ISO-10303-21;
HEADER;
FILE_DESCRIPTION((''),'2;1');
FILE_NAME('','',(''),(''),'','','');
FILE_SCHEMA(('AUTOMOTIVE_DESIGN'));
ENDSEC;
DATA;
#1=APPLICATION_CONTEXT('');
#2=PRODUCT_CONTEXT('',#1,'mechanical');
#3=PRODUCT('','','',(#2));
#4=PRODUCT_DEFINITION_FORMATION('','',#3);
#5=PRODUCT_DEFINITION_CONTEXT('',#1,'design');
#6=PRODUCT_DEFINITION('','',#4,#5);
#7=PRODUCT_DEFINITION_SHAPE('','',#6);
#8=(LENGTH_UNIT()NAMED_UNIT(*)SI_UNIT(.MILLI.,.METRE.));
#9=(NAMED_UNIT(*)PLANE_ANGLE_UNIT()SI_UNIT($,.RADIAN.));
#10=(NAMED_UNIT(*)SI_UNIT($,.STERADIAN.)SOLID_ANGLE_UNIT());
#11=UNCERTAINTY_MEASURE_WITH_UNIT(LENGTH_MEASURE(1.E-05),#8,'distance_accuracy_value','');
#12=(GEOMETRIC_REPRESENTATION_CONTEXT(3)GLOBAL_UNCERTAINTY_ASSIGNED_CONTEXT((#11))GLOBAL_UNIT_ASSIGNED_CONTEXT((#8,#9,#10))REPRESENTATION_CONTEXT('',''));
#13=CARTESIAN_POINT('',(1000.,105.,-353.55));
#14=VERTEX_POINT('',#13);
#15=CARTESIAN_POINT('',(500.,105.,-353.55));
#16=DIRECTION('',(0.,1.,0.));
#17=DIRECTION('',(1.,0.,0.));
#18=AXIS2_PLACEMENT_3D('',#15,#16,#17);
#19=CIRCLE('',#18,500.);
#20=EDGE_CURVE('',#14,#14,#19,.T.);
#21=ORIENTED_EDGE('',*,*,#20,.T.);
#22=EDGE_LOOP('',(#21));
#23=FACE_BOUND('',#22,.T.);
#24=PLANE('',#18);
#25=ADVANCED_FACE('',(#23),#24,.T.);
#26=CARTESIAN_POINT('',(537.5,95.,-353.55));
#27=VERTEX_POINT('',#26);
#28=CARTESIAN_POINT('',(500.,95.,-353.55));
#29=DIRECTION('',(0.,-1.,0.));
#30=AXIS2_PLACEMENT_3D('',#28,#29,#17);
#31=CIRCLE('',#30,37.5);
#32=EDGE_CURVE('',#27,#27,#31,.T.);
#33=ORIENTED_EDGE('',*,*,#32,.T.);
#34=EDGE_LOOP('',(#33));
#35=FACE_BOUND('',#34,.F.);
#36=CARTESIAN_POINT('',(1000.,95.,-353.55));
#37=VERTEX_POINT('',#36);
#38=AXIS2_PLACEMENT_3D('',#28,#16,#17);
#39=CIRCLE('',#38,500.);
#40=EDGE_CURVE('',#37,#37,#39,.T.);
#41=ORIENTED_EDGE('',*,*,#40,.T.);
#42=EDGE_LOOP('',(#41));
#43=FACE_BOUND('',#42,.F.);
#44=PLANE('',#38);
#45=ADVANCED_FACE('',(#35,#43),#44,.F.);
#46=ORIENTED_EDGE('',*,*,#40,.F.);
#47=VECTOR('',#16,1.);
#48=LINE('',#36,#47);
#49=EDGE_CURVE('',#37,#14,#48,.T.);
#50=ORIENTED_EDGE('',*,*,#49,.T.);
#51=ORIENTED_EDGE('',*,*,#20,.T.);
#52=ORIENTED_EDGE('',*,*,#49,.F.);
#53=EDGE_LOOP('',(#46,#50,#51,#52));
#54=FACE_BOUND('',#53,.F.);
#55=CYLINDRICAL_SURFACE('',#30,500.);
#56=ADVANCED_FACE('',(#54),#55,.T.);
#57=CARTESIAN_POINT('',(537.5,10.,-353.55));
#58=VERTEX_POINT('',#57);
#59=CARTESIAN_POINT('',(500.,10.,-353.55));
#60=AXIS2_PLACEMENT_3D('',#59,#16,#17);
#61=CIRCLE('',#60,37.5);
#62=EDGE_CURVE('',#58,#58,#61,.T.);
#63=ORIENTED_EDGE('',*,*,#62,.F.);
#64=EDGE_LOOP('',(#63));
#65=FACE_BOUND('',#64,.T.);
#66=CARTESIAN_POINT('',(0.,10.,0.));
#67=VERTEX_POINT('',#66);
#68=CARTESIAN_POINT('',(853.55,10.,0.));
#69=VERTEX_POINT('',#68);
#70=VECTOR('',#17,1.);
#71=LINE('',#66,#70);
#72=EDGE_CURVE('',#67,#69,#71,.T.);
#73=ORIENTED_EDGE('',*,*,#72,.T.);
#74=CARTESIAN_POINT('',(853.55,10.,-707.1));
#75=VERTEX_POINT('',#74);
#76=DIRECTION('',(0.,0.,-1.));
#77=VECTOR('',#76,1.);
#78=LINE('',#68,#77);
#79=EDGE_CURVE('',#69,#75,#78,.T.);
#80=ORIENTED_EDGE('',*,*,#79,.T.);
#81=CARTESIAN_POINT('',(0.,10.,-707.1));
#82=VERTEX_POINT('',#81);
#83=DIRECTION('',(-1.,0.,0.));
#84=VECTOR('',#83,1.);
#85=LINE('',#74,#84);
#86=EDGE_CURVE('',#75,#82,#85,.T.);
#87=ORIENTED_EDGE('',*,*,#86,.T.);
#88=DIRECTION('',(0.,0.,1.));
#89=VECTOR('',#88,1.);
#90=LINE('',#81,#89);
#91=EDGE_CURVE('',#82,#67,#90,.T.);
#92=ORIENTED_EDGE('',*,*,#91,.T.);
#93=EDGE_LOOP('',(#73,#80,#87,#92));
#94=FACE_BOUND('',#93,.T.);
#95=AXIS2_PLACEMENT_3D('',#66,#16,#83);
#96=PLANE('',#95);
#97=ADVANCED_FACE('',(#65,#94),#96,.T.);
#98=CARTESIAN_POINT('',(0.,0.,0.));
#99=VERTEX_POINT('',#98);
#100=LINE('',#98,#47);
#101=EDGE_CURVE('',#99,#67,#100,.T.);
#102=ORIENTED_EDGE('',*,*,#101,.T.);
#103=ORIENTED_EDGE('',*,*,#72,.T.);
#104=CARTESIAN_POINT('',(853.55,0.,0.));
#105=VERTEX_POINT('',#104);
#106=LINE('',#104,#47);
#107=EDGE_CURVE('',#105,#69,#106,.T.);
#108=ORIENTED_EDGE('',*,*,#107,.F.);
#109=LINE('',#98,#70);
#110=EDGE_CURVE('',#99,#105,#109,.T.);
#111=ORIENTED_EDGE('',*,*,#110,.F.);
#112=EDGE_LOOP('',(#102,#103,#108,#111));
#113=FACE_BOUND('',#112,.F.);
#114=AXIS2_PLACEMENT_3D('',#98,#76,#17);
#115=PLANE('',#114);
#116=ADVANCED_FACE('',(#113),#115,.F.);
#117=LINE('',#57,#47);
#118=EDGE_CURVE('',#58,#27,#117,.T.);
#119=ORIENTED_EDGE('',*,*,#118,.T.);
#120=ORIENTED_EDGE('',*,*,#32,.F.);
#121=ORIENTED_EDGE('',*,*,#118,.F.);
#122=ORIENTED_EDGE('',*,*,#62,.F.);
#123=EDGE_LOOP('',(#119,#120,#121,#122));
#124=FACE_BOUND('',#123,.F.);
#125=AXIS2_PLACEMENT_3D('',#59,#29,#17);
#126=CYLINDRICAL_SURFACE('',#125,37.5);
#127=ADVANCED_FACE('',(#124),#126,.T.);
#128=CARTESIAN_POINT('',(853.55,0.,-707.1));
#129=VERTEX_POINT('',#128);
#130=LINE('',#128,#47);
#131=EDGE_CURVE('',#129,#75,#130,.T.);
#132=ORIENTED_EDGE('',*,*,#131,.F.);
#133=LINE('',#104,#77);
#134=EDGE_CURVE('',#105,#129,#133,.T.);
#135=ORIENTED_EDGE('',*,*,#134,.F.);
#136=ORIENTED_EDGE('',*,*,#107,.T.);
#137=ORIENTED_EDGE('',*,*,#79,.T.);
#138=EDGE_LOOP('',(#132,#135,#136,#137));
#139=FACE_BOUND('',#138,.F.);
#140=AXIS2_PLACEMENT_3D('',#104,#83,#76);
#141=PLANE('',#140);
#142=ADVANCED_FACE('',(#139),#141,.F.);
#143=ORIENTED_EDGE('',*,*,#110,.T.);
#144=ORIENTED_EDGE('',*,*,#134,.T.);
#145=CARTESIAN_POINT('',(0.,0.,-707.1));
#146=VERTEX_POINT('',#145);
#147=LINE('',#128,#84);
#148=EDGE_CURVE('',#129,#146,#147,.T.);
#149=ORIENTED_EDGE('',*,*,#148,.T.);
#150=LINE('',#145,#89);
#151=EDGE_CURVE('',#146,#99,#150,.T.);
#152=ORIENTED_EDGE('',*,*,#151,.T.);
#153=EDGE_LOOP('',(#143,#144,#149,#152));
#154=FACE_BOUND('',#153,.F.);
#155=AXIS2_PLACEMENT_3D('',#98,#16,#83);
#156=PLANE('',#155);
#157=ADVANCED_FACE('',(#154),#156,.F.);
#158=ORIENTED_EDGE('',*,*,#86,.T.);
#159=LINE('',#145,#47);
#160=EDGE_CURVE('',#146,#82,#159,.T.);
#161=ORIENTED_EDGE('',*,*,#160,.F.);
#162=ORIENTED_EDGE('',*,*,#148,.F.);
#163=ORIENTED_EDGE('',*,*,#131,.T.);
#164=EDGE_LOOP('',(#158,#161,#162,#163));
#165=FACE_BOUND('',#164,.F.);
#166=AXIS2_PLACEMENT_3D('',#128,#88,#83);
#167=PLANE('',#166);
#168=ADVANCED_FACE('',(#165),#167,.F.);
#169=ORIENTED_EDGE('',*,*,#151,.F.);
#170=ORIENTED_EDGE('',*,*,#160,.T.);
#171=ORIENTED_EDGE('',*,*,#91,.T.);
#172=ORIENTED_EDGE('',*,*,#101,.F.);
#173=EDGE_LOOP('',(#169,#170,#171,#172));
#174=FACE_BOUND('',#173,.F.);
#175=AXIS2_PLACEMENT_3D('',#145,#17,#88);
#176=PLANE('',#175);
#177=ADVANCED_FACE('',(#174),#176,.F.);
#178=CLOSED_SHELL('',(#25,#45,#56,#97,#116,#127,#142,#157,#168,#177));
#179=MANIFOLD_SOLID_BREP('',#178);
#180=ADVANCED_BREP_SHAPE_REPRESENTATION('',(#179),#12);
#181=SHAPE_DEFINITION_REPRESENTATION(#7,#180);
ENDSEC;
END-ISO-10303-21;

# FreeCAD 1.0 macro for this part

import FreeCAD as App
import Part
import Sketcher
Q = App.Units.Quantity


def add_polygon(sketch, points):
    """Adds a closed chain of lines whose ends are joined by coincident constraints."""
    first, n = sketch.GeometryCount, len(points)
    for a, b in zip(points, points[1:] + points[:1]):
        sketch.addGeometry(Part.LineSegment(App.Vector(*a, 0), App.Vector(*b, 0)), False)
    for i in range(n):
        sketch.addConstraint(Sketcher.Constraint("Coincident", first + i, 2, first + (i + 1) % n, 1))

doc = App.newDocument("Part")
body = doc.addObject("PartDesign::Body", "Body")

# Sketch on XZ plane
sketch1 = body.newObject("Sketcher::SketchObject", "Sketch")
sketch1.AttachmentSupport = (doc.getObject("XZ_Plane"), [""])
sketch1.MapMode = "FlatFace"
add_polygon(sketch1, [(0, -707), (0, 0), (854, 0), (854, -707)])  # lines 0-3
sketch1.addConstraint(Sketcher.Constraint("Vertical", 0))
sketch1.addConstraint(Sketcher.Constraint("Horizontal", 1))
sketch1.addConstraint(Sketcher.Constraint("Vertical", 2))
sketch1.addConstraint(Sketcher.Constraint("Horizontal", 3))
sketch1.addConstraint(Sketcher.Constraint("Coincident", 0, 2, -1, 1))
sketch1.addConstraint(Sketcher.Constraint("DistanceY", 0, 1, 0, 2, Q("707.1 mm")))
sketch1.addConstraint(Sketcher.Constraint("DistanceX", 1, 1, 1, 2, Q("853.55 mm")))
pad1 = body.newObject("PartDesign::Pad", "Pad")
pad1.Profile = sketch1
pad1.Length = 10
pad1.Reversed = True

# Sketch on XZ plane
sketch2 = body.newObject("Sketcher::SketchObject", "Sketch001")
sketch2.AttachmentSupport = (doc.getObject("XZ_Plane"), [""])
sketch2.MapMode = "FlatFace"
sketch2.AttachmentOffset = App.Placement(App.Vector(0, 0, -10), App.Rotation())
sketch2.addGeometry(Part.Circle(App.Vector(500, -354, 0), App.Vector(0, 0, 1), 38), False)
sketch2.addConstraint(Sketcher.Constraint("Diameter", 0, Q("75 mm")))
sketch2.addConstraint(Sketcher.Constraint("DistanceX", -1, 1, 0, 3, Q("500 mm")))
sketch2.addConstraint(Sketcher.Constraint("DistanceY", 0, 3, -1, 1, Q("353.55 mm")))
pad2 = body.newObject("PartDesign::Pad", "Pad001")
pad2.Profile = sketch2
pad2.Length = 85
pad2.Reversed = True

# Sketch on XZ plane
sketch3 = body.newObject("Sketcher::SketchObject", "Sketch002")
sketch3.AttachmentSupport = (doc.getObject("XZ_Plane"), [""])
sketch3.MapMode = "FlatFace"
sketch3.AttachmentOffset = App.Placement(App.Vector(0, 0, -95), App.Rotation())
sketch3.addGeometry(Part.Circle(App.Vector(500, -354, 0), App.Vector(0, 0, 1), 500), False)
sketch3.addConstraint(Sketcher.Constraint("Diameter", 0, Q("1000 mm")))
sketch3.addConstraint(Sketcher.Constraint("DistanceX", -1, 1, 0, 3, Q("500 mm")))
sketch3.addConstraint(Sketcher.Constraint("DistanceY", 0, 3, -1, 1, Q("353.55 mm")))
pad3 = body.newObject("PartDesign::Pad", "Pad002")
pad3.Profile = sketch3
pad3.Length = 10
pad3.Reversed = True

doc.recompute()
